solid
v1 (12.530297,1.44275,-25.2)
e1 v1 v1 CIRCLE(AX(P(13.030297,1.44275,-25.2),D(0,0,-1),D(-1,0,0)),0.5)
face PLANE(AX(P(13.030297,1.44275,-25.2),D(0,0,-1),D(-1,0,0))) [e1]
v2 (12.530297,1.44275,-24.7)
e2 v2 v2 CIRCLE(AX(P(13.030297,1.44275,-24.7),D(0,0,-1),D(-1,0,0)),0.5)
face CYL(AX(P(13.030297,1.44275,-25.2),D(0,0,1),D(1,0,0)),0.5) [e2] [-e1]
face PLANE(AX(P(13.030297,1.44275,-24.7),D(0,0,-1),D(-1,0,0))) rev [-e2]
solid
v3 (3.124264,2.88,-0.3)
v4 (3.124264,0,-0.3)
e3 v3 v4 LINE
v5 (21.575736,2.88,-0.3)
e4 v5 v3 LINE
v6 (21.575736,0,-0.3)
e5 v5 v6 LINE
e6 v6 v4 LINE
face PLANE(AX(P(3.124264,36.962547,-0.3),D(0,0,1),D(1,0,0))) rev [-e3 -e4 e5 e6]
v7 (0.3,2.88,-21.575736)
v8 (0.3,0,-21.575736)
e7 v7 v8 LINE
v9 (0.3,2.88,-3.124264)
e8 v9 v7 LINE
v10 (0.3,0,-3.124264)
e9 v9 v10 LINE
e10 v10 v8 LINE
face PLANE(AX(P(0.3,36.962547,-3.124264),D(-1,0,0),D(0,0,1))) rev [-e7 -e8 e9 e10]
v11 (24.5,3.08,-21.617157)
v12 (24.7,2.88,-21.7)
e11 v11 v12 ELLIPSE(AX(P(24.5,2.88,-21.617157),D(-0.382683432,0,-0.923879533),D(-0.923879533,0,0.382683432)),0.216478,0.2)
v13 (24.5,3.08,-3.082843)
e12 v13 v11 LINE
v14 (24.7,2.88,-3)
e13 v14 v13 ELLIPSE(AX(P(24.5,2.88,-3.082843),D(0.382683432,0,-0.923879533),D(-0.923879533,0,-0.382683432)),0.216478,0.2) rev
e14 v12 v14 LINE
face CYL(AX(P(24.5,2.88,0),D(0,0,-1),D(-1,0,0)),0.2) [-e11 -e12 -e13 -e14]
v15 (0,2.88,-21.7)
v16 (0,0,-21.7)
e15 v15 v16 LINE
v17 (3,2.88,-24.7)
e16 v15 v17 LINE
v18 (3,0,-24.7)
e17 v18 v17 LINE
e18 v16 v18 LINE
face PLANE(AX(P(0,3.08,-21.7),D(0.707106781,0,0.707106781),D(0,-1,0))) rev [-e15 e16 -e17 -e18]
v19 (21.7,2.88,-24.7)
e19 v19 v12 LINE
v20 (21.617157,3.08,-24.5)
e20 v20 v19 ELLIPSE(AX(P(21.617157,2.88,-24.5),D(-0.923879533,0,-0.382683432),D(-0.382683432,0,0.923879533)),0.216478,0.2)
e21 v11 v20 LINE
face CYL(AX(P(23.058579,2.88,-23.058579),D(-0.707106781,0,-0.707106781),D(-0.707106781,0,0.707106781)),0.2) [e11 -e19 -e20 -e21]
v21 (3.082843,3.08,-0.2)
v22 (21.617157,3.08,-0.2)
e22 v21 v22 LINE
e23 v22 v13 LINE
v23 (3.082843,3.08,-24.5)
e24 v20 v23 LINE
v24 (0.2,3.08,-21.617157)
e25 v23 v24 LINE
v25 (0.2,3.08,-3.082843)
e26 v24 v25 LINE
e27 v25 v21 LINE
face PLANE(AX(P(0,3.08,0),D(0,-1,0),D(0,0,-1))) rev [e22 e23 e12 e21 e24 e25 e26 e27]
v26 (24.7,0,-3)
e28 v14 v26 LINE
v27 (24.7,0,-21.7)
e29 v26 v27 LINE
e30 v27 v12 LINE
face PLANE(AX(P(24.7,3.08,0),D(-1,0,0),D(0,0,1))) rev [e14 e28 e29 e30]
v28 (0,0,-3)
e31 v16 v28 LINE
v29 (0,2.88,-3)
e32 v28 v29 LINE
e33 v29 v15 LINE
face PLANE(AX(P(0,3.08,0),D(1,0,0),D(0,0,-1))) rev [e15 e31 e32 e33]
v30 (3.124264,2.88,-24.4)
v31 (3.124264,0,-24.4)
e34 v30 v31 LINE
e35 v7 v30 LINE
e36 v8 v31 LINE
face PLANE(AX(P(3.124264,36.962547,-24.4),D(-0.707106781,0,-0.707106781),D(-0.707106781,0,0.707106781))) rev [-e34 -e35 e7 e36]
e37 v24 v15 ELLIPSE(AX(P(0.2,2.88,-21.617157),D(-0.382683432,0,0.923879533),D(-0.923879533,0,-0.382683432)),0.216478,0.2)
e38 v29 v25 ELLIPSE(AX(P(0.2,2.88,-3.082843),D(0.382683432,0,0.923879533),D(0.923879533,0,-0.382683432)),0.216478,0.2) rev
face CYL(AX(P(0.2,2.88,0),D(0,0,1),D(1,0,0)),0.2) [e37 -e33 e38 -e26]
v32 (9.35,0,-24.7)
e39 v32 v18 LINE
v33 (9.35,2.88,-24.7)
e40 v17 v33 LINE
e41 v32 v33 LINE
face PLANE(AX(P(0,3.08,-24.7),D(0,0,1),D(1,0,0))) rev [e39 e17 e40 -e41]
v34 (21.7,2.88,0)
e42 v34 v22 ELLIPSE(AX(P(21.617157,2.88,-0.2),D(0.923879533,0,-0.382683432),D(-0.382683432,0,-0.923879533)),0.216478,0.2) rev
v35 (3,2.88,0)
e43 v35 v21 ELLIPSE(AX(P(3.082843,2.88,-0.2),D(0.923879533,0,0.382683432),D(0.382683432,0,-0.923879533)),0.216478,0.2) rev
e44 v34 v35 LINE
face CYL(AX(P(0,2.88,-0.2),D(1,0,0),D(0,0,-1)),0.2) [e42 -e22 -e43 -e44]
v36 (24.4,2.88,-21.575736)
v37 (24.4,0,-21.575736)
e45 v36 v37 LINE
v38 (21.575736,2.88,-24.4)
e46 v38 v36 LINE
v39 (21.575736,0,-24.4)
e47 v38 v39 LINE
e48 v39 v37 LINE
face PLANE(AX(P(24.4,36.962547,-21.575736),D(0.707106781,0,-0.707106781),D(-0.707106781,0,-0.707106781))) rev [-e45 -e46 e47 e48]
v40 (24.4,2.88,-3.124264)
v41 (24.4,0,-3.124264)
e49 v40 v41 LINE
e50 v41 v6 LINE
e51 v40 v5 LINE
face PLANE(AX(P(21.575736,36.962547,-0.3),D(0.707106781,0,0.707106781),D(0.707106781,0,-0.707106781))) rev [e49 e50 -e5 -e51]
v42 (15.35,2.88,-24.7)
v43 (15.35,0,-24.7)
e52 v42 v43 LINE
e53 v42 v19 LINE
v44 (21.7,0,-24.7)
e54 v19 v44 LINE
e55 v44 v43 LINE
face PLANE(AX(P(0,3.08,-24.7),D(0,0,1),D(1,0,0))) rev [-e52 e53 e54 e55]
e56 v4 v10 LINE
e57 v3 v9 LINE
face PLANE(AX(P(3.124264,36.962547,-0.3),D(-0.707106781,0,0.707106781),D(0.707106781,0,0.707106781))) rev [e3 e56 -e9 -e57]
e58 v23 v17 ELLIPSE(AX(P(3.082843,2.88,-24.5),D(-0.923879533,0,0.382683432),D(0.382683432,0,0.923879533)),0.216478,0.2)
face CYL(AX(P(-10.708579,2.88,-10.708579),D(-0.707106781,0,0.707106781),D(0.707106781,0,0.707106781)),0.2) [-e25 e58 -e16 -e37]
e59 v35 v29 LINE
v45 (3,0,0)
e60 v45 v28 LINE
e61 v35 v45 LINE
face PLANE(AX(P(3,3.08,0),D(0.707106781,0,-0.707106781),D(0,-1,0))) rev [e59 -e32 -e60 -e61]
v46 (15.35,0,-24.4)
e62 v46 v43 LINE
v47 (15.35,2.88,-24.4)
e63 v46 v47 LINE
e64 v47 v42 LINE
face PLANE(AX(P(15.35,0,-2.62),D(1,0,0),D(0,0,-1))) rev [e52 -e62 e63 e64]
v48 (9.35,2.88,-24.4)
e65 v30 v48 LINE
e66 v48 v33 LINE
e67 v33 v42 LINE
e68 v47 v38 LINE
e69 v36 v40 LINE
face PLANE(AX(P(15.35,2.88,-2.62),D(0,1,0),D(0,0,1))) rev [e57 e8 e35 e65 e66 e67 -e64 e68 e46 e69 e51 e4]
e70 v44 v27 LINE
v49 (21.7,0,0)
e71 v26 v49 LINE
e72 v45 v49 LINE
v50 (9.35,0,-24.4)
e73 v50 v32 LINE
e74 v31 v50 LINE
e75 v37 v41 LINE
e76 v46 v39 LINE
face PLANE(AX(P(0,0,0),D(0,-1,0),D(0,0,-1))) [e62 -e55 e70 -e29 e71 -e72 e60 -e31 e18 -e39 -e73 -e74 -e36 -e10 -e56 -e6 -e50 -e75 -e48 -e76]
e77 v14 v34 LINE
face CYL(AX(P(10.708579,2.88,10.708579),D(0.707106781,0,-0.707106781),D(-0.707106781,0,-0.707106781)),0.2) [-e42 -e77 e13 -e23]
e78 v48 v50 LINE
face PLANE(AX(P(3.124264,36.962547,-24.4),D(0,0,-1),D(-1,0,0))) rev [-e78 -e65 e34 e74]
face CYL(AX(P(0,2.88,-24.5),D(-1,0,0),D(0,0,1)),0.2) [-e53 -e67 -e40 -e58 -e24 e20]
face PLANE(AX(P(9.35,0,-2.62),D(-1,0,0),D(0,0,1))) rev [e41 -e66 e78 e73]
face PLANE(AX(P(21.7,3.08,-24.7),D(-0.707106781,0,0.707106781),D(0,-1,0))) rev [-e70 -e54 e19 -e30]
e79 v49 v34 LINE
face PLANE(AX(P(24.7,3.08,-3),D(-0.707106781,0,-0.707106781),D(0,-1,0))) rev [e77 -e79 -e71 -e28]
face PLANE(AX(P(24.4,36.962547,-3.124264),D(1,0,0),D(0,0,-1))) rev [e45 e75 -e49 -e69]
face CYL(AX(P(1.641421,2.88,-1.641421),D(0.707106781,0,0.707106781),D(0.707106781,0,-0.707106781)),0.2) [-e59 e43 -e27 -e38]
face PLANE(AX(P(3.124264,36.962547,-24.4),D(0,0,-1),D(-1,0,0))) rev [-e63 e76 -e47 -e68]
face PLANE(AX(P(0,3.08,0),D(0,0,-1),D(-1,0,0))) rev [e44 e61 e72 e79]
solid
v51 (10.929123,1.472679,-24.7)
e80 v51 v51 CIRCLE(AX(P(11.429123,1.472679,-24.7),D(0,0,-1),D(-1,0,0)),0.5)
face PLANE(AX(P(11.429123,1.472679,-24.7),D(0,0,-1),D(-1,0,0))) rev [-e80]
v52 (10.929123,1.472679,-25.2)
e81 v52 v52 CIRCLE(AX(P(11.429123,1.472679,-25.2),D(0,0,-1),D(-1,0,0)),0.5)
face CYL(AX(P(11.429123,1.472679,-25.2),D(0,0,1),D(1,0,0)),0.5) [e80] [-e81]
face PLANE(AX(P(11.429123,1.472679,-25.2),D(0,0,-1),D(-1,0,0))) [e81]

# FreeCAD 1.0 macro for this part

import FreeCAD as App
import Part
import Sketcher
Q = App.Units.Quantity


def edges_at(feature, points):
    """Names of the edges that pass closest to the given points."""
    edges = feature.Shape.Edges
    near = lambda p: min(range(len(edges)), key=lambda i: edges[i].distToShape(Part.Vertex(*p))[0])
    return sorted({f"Edge{near(p) + 1}" for p in points})


def add_polygon(sketch, points):
    """Adds a closed chain of lines whose ends are joined by coincident constraints."""
    first, n = sketch.GeometryCount, len(points)
    for a, b in zip(points, points[1:] + points[:1]):
        sketch.addGeometry(Part.LineSegment(App.Vector(*a, 0), App.Vector(*b, 0)), False)
    for i in range(n):
        sketch.addConstraint(Sketcher.Constraint("Coincident", first + i, 2, first + (i + 1) % n, 1))

doc = App.newDocument("Part")
params = doc.addObject("Spreadsheet::Sheet", "Params")
for row, (alias, value) in enumerate([
    ("sketch1_width", "24.7 mm"),
    ("pad1_length", "3.08 mm"),
    ("chamfer_size", "3 mm"),
    ("fillet_radius", "0.2 mm"),
    ("sketch2_width", "6 mm"),
    ("sketch2_height", "2.88 mm"),
    ("pocket1_length", "22.08 mm"),
    ("pocket2_length", "2.88 mm"),
    ("sketch4_diameter", "1 mm"),
    ("pad2_length", "0.5 mm"),
    ("sketch5_diameter", "1 mm"),
    ("pad3_length", "0.5 mm"),
], start=1):
    params.set(f"A{row}", alias)
    params.set(f"B{row}", "=" + value)
    params.setAlias(f"B{row}", alias)

body = doc.addObject("PartDesign::Body", "Body")

# Sketch on XZ plane
sketch1 = body.newObject("Sketcher::SketchObject", "Sketch")
sketch1.AttachmentSupport = (doc.getObject("XZ_Plane"), [""])
sketch1.MapMode = "FlatFace"
add_polygon(sketch1, [(0, -25), (0, 0), (25, 0), (25, -25)])  # lines 0-3
sketch1.addConstraint([
    Sketcher.Constraint("Vertical", 0),
    Sketcher.Constraint("Horizontal", 1),
    Sketcher.Constraint("Vertical", 2),
    Sketcher.Constraint("Horizontal", 3),
    Sketcher.Constraint("Coincident", 0, 2, -1, 1),
    Sketcher.Constraint("Equal", 3, 0),
    Sketcher.Constraint("DistanceX", 1, 1, 1, 2, Q("24.7 mm")),
])
sketch1.setExpression("Constraints[10]", "Params.sketch1_width")
pad1 = body.newObject("PartDesign::Pad", "Pad")
pad1.Profile = sketch1
pad1.setExpression("Length", "Params.pad1_length")
pad1.Reversed = True
doc.recompute()

chamfer = body.newObject("PartDesign::Chamfer", "Chamfer")
chamfer.Base = (pad1, edges_at(pad1, [
    (0, 1.54, -24.7),
    (24.7, 1.54, -24.7),
    (24.7, 1.54, 0),
    (0, 1.54, 0),
]))
chamfer.setExpression("Size", "Params.chamfer_size")
doc.recompute()

fillet = body.newObject("PartDesign::Fillet", "Fillet")
fillet.Base = (chamfer, edges_at(chamfer, [
    (0, 3.08, -12.35),
    (12.35, 3.08, -24.7),
    (12.35, 3.08, 0),
    (24.7, 3.08, -12.35),
    (1.5, 3.08, -1.5),
    (23.2, 3.08, -1.5),
    (23.2, 3.08, -23.2),
    (1.5, 3.08, -23.2),
]))
fillet.setExpression("Radius", "Params.fillet_radius")

# Sketch on XY plane
sketch2 = body.newObject("Sketcher::SketchObject", "Sketch001")
sketch2.AttachmentSupport = (doc.getObject("XY_Plane"), [""])
sketch2.MapMode = "FlatFace"
sketch2.AttachmentOffset = App.Placement(App.Vector(0, 0, -24.7), App.Rotation())
add_polygon(sketch2, [(15.3, 2.9), (15.3, 0), (9.3, 0), (9.3, 2.9)])  # lines 0-3
sketch2.addConstraint([
    Sketcher.Constraint("Vertical", 0),
    Sketcher.Constraint("Horizontal", 1),
    Sketcher.Constraint("Vertical", 2),
    Sketcher.Constraint("Horizontal", 3),
    Sketcher.Constraint("PointOnObject", 0, 2, -1),
    Sketcher.Constraint("DistanceX", 1, 2, 1, 1, Q("6 mm")),
    Sketcher.Constraint("DistanceY", 0, 2, 0, 1, Q("2.88 mm")),
    Sketcher.Constraint("DistanceX", -1, 1, 0, 2, Q("15.35 mm")),
])
sketch2.setExpression("Constraints[9]", "Params.sketch2_width")
sketch2.setExpression("Constraints[10]", "Params.sketch2_height")
pocket1 = body.newObject("PartDesign::Pocket", "Pocket")
pocket1.Profile = sketch2
pocket1.setExpression("Length", "Params.pocket1_length")
pocket1.Reversed = True

# Sketch on XZ plane
sketch3 = body.newObject("Sketcher::SketchObject", "Sketch002")
sketch3.AttachmentSupport = (doc.getObject("XZ_Plane"), [""])
sketch3.MapMode = "FlatFace"
add_polygon(sketch3, [(3.1, -24.4), (21.6, -24.4), (24.4, -21.6), (24.4, -3.1), (21.6, -0.3), (3.1, -0.3), (0.3, -3.1), (0.3, -21.6)])  # lines 0-7
sketch3.addConstraint([
    Sketcher.Constraint("Horizontal", 0),
    Sketcher.Constraint("Vertical", 2),
    Sketcher.Constraint("Horizontal", 4),
    Sketcher.Constraint("Vertical", 6),
    Sketcher.Constraint("Perpendicular", 1, 3),
    Sketcher.Constraint("Perpendicular", 3, 5),
    Sketcher.Constraint("Perpendicular", 5, 7),
    Sketcher.Constraint("Horizontal", 2, 2, 5, 2),
    Sketcher.Constraint("Horizontal", 1, 2, 6, 2),
    Sketcher.Constraint("Vertical", 0, 2, 3, 2),
    Sketcher.Constraint("Vertical", 4, 2, 7, 2),
    Sketcher.Constraint("Equal", 4, 2),
    Sketcher.Constraint("DistanceY", 0, 2, -1, 1, Q("24.4 mm")),
    Sketcher.Constraint("DistanceX", -1, 1, 1, 2, Q("24.4 mm")),
    Sketcher.Constraint("DistanceY", 3, 2, -1, 1, Q("0.3 mm")),
    Sketcher.Constraint("DistanceX", 0, 1, 0, 2, Q("18.451472 mm")),
])
pocket2 = body.newObject("PartDesign::Pocket", "Pocket001")
pocket2.Profile = sketch3
pocket2.setExpression("Length", "Params.pocket2_length")
body2 = doc.addObject("PartDesign::Body", "Body001")

# Sketch on XY plane
sketch4 = body2.newObject("Sketcher::SketchObject", "Sketch003")
sketch4.AttachmentSupport = (doc.getObject("XY_Plane001"), [""])
sketch4.MapMode = "FlatFace"
sketch4.AttachmentOffset = App.Placement(App.Vector(0, 0, -24.7), App.Rotation())
sketch4.addGeometry(Part.Circle(App.Vector(11.4, 1.5, 0), App.Vector(0, 0, 1), 0.5), False)
sketch4.addConstraint([
    Sketcher.Constraint("Diameter", 0, Q("1 mm")),
    Sketcher.Constraint("DistanceY", -1, 1, 0, 3, Q("1.472679 mm")),
    Sketcher.Constraint("DistanceX", -1, 1, 0, 3, Q("11.429123 mm")),
])
sketch4.setExpression("Constraints[0]", "Params.sketch4_diameter")
pad2 = body2.newObject("PartDesign::Pad", "Pad001")
pad2.Profile = sketch4
pad2.setExpression("Length", "Params.pad2_length")
pad2.Reversed = True
body3 = doc.addObject("PartDesign::Body", "Body002")

# Sketch on XY plane
sketch5 = body3.newObject("Sketcher::SketchObject", "Sketch004")
sketch5.AttachmentSupport = (doc.getObject("XY_Plane002"), [""])
sketch5.MapMode = "FlatFace"
sketch5.AttachmentOffset = App.Placement(App.Vector(0, 0, -24.7), App.Rotation())
sketch5.addGeometry(Part.Circle(App.Vector(13, 1.4, 0), App.Vector(0, 0, 1), 0.5), False)
sketch5.addConstraint([
    Sketcher.Constraint("Diameter", 0, Q("1 mm")),
    Sketcher.Constraint("DistanceY", -1, 1, 0, 3, Q("1.44275 mm")),
    Sketcher.Constraint("DistanceX", -1, 1, 0, 3, Q("13.030297 mm")),
])
sketch5.setExpression("Constraints[0]", "Params.sketch5_diameter")
pad3 = body3.newObject("PartDesign::Pad", "Pad002")
pad3.Profile = sketch5
pad3.setExpression("Length", "Params.pad3_length")
pad3.Reversed = True

doc.recompute()
